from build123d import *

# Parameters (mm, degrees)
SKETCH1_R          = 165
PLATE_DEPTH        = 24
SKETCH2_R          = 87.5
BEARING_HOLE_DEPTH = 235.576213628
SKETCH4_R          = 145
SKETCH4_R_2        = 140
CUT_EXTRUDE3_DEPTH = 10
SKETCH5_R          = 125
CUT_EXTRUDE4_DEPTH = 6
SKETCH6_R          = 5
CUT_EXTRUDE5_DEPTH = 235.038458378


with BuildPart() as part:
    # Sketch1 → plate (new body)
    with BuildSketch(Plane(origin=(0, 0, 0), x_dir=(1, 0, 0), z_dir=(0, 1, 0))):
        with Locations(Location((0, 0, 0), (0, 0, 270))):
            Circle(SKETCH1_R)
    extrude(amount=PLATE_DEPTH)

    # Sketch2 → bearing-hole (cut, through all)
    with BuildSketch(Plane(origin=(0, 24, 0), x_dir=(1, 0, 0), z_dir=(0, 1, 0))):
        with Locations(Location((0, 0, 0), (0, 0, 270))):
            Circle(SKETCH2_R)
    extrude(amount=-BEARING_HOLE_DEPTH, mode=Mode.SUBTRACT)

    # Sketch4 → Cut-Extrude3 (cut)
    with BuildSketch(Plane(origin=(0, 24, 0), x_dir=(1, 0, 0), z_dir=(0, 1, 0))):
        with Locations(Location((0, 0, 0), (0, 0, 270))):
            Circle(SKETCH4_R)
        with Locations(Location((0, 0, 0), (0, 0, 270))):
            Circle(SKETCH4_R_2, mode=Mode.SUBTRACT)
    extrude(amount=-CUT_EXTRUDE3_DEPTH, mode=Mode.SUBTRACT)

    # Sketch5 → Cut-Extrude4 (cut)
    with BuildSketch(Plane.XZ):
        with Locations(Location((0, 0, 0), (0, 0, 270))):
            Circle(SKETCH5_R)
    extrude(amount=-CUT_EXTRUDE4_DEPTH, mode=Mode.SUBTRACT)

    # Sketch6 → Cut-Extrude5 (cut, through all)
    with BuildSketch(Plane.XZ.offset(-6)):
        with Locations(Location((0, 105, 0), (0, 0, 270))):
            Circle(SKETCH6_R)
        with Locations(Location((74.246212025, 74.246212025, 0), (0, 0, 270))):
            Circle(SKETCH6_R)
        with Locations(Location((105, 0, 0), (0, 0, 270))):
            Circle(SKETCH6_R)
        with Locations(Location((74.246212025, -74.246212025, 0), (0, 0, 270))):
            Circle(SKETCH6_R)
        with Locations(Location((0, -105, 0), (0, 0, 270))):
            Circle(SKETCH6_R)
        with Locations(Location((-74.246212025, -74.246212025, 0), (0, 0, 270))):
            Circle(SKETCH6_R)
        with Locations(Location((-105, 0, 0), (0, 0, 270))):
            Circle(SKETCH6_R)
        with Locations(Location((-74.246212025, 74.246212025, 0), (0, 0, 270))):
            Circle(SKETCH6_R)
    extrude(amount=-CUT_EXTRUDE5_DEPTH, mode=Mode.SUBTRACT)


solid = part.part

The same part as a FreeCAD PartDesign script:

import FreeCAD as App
import Part
import Sketcher
Q = App.Units.Quantity

doc = App.newDocument("Part")
body = doc.addObject("PartDesign::Body", "Body")

# Sketch on XZ plane
sketch1 = body.newObject("Sketcher::SketchObject", "Sketch")
sketch1.AttachmentSupport = (doc.getObject("XZ_Plane"), [""])
sketch1.MapMode = "FlatFace"
sketch1.addGeometry(Part.Circle(App.Vector(0, 0, 0), App.Vector(0, 0, 1), 165), False)
sketch1.addConstraint([
    Sketcher.Constraint("Coincident", 0, 3, -1, 1),
    Sketcher.Constraint("Diameter", 0, Q("330 mm")),
])
pad1 = body.newObject("PartDesign::Pad", "Pad")
pad1.Profile = sketch1
pad1.Length = 24
pad1.Reversed = True

# Sketch on XZ plane
sketch2 = body.newObject("Sketcher::SketchObject", "Sketch001")
sketch2.AttachmentSupport = (doc.getObject("XZ_Plane"), [""])
sketch2.MapMode = "FlatFace"
sketch2.AttachmentOffset = App.Placement(App.Vector(0, 0, -24), App.Rotation())
sketch2.addGeometry(Part.Circle(App.Vector(0, 0, 0), App.Vector(0, 0, 1), 88), False)
sketch2.addConstraint([
    Sketcher.Constraint("Coincident", 0, 3, -1, 1),
    Sketcher.Constraint("Diameter", 0, Q("175 mm")),
])
pocket1 = body.newObject("PartDesign::Pocket", "Pocket")
pocket1.Profile = sketch2
pocket1.Type = "ThroughAll"
pocket1.Reversed = True

# Sketch on XZ plane
sketch3 = body.newObject("Sketcher::SketchObject", "Sketch002")
sketch3.AttachmentSupport = (doc.getObject("XZ_Plane"), [""])
sketch3.MapMode = "FlatFace"
sketch3.AttachmentOffset = App.Placement(App.Vector(0, 0, -24), App.Rotation())
sketch3.addGeometry([
    Part.Circle(App.Vector(0, 0, 0), App.Vector(0, 0, 1), 145),
    Part.Circle(App.Vector(0, 0, 0), App.Vector(0, 0, 1), 140),
], False)
sketch3.addConstraint([
    Sketcher.Constraint("Coincident", 0, 3, -1, 1),
    Sketcher.Constraint("Coincident", 1, 3, -1, 1),
    Sketcher.Constraint("Diameter", 0, Q("290 mm")),
    Sketcher.Constraint("Diameter", 1, Q("280 mm")),
])
pocket2 = body.newObject("PartDesign::Pocket", "Pocket001")
pocket2.Profile = sketch3
pocket2.Length = 10
pocket2.Reversed = True

# Sketch on XZ plane
sketch4 = body.newObject("Sketcher::SketchObject", "Sketch003")
sketch4.AttachmentSupport = (doc.getObject("XZ_Plane"), [""])
sketch4.MapMode = "FlatFace"
sketch4.addGeometry(Part.Circle(App.Vector(0, 0, 0), App.Vector(0, 0, 1), 125), False)
sketch4.addConstraint([
    Sketcher.Constraint("Coincident", 0, 3, -1, 1),
    Sketcher.Constraint("Diameter", 0, Q("250 mm")),
])
pocket3 = body.newObject("PartDesign::Pocket", "Pocket002")
pocket3.Profile = sketch4
pocket3.Length = 6

# Sketch on XZ plane
sketch5 = body.newObject("Sketcher::SketchObject", "Sketch004")
sketch5.AttachmentSupport = (doc.getObject("XZ_Plane"), [""])
sketch5.MapMode = "FlatFace"
sketch5.AttachmentOffset = App.Placement(App.Vector(0, 0, -6), App.Rotation())
sketch5.addGeometry([
    Part.Circle(App.Vector(0, 105, 0), App.Vector(0, 0, 1), 5),  # 0
    Part.Circle(App.Vector(74, 74, 0), App.Vector(0, 0, 1), 5),  # 1
    Part.Circle(App.Vector(105, 0, 0), App.Vector(0, 0, 1), 5),  # 2
    Part.Circle(App.Vector(74, -74, 0), App.Vector(0, 0, 1), 5),  # 3
    Part.Circle(App.Vector(0, -105, 0), App.Vector(0, 0, 1), 5),  # 4
    Part.Circle(App.Vector(-74, -74, 0), App.Vector(0, 0, 1), 5),  # 5
    Part.Circle(App.Vector(-105, 0, 0), App.Vector(0, 0, 1), 5),  # 6
    Part.Circle(App.Vector(-74, 74, 0), App.Vector(0, 0, 1), 5),  # 7
], False)
sketch5.addConstraint([
    Sketcher.Constraint("Equal", 0, 1),
    Sketcher.Constraint("Equal", 1, 2),
    Sketcher.Constraint("Equal", 2, 3),
    Sketcher.Constraint("Equal", 3, 4),
    Sketcher.Constraint("Equal", 4, 5),
    Sketcher.Constraint("Equal", 5, 6),
    Sketcher.Constraint("Equal", 6, 7),
    Sketcher.Constraint("Symmetric", 0, 3, 4, 3, -1, 1),
    Sketcher.Constraint("Symmetric", 1, 3, 5, 3, -1, 1),
    Sketcher.Constraint("Symmetric", 2, 3, 6, 3, -1, 1),
    Sketcher.Constraint("Symmetric", 3, 3, 7, 3, -1, 1),
    Sketcher.Constraint("Symmetric", 3, 3, 5, 3, -2),
    Sketcher.Constraint("PointOnObject", 0, 3, -2),
    Sketcher.Constraint("PointOnObject", 2, 3, -1),
    Sketcher.Constraint("Diameter", 0, Q("10 mm")),
    Sketcher.Constraint("DistanceY", -1, 1, 0, 3, Q("105 mm")),
    Sketcher.Constraint("DistanceX", -1, 1, 2, 3, Q("105 mm")),
    Sketcher.Constraint("DistanceX", -1, 1, 1, 3, Q("74.246212 mm")),
    Sketcher.Constraint("DistanceY", -1, 1, 1, 3, Q("74.246212 mm")),
])
pocket4 = body.newObject("PartDesign::Pocket", "Pocket003")
pocket4.Profile = sketch5
pocket4.Type = "ThroughAll"

doc.recompute()
